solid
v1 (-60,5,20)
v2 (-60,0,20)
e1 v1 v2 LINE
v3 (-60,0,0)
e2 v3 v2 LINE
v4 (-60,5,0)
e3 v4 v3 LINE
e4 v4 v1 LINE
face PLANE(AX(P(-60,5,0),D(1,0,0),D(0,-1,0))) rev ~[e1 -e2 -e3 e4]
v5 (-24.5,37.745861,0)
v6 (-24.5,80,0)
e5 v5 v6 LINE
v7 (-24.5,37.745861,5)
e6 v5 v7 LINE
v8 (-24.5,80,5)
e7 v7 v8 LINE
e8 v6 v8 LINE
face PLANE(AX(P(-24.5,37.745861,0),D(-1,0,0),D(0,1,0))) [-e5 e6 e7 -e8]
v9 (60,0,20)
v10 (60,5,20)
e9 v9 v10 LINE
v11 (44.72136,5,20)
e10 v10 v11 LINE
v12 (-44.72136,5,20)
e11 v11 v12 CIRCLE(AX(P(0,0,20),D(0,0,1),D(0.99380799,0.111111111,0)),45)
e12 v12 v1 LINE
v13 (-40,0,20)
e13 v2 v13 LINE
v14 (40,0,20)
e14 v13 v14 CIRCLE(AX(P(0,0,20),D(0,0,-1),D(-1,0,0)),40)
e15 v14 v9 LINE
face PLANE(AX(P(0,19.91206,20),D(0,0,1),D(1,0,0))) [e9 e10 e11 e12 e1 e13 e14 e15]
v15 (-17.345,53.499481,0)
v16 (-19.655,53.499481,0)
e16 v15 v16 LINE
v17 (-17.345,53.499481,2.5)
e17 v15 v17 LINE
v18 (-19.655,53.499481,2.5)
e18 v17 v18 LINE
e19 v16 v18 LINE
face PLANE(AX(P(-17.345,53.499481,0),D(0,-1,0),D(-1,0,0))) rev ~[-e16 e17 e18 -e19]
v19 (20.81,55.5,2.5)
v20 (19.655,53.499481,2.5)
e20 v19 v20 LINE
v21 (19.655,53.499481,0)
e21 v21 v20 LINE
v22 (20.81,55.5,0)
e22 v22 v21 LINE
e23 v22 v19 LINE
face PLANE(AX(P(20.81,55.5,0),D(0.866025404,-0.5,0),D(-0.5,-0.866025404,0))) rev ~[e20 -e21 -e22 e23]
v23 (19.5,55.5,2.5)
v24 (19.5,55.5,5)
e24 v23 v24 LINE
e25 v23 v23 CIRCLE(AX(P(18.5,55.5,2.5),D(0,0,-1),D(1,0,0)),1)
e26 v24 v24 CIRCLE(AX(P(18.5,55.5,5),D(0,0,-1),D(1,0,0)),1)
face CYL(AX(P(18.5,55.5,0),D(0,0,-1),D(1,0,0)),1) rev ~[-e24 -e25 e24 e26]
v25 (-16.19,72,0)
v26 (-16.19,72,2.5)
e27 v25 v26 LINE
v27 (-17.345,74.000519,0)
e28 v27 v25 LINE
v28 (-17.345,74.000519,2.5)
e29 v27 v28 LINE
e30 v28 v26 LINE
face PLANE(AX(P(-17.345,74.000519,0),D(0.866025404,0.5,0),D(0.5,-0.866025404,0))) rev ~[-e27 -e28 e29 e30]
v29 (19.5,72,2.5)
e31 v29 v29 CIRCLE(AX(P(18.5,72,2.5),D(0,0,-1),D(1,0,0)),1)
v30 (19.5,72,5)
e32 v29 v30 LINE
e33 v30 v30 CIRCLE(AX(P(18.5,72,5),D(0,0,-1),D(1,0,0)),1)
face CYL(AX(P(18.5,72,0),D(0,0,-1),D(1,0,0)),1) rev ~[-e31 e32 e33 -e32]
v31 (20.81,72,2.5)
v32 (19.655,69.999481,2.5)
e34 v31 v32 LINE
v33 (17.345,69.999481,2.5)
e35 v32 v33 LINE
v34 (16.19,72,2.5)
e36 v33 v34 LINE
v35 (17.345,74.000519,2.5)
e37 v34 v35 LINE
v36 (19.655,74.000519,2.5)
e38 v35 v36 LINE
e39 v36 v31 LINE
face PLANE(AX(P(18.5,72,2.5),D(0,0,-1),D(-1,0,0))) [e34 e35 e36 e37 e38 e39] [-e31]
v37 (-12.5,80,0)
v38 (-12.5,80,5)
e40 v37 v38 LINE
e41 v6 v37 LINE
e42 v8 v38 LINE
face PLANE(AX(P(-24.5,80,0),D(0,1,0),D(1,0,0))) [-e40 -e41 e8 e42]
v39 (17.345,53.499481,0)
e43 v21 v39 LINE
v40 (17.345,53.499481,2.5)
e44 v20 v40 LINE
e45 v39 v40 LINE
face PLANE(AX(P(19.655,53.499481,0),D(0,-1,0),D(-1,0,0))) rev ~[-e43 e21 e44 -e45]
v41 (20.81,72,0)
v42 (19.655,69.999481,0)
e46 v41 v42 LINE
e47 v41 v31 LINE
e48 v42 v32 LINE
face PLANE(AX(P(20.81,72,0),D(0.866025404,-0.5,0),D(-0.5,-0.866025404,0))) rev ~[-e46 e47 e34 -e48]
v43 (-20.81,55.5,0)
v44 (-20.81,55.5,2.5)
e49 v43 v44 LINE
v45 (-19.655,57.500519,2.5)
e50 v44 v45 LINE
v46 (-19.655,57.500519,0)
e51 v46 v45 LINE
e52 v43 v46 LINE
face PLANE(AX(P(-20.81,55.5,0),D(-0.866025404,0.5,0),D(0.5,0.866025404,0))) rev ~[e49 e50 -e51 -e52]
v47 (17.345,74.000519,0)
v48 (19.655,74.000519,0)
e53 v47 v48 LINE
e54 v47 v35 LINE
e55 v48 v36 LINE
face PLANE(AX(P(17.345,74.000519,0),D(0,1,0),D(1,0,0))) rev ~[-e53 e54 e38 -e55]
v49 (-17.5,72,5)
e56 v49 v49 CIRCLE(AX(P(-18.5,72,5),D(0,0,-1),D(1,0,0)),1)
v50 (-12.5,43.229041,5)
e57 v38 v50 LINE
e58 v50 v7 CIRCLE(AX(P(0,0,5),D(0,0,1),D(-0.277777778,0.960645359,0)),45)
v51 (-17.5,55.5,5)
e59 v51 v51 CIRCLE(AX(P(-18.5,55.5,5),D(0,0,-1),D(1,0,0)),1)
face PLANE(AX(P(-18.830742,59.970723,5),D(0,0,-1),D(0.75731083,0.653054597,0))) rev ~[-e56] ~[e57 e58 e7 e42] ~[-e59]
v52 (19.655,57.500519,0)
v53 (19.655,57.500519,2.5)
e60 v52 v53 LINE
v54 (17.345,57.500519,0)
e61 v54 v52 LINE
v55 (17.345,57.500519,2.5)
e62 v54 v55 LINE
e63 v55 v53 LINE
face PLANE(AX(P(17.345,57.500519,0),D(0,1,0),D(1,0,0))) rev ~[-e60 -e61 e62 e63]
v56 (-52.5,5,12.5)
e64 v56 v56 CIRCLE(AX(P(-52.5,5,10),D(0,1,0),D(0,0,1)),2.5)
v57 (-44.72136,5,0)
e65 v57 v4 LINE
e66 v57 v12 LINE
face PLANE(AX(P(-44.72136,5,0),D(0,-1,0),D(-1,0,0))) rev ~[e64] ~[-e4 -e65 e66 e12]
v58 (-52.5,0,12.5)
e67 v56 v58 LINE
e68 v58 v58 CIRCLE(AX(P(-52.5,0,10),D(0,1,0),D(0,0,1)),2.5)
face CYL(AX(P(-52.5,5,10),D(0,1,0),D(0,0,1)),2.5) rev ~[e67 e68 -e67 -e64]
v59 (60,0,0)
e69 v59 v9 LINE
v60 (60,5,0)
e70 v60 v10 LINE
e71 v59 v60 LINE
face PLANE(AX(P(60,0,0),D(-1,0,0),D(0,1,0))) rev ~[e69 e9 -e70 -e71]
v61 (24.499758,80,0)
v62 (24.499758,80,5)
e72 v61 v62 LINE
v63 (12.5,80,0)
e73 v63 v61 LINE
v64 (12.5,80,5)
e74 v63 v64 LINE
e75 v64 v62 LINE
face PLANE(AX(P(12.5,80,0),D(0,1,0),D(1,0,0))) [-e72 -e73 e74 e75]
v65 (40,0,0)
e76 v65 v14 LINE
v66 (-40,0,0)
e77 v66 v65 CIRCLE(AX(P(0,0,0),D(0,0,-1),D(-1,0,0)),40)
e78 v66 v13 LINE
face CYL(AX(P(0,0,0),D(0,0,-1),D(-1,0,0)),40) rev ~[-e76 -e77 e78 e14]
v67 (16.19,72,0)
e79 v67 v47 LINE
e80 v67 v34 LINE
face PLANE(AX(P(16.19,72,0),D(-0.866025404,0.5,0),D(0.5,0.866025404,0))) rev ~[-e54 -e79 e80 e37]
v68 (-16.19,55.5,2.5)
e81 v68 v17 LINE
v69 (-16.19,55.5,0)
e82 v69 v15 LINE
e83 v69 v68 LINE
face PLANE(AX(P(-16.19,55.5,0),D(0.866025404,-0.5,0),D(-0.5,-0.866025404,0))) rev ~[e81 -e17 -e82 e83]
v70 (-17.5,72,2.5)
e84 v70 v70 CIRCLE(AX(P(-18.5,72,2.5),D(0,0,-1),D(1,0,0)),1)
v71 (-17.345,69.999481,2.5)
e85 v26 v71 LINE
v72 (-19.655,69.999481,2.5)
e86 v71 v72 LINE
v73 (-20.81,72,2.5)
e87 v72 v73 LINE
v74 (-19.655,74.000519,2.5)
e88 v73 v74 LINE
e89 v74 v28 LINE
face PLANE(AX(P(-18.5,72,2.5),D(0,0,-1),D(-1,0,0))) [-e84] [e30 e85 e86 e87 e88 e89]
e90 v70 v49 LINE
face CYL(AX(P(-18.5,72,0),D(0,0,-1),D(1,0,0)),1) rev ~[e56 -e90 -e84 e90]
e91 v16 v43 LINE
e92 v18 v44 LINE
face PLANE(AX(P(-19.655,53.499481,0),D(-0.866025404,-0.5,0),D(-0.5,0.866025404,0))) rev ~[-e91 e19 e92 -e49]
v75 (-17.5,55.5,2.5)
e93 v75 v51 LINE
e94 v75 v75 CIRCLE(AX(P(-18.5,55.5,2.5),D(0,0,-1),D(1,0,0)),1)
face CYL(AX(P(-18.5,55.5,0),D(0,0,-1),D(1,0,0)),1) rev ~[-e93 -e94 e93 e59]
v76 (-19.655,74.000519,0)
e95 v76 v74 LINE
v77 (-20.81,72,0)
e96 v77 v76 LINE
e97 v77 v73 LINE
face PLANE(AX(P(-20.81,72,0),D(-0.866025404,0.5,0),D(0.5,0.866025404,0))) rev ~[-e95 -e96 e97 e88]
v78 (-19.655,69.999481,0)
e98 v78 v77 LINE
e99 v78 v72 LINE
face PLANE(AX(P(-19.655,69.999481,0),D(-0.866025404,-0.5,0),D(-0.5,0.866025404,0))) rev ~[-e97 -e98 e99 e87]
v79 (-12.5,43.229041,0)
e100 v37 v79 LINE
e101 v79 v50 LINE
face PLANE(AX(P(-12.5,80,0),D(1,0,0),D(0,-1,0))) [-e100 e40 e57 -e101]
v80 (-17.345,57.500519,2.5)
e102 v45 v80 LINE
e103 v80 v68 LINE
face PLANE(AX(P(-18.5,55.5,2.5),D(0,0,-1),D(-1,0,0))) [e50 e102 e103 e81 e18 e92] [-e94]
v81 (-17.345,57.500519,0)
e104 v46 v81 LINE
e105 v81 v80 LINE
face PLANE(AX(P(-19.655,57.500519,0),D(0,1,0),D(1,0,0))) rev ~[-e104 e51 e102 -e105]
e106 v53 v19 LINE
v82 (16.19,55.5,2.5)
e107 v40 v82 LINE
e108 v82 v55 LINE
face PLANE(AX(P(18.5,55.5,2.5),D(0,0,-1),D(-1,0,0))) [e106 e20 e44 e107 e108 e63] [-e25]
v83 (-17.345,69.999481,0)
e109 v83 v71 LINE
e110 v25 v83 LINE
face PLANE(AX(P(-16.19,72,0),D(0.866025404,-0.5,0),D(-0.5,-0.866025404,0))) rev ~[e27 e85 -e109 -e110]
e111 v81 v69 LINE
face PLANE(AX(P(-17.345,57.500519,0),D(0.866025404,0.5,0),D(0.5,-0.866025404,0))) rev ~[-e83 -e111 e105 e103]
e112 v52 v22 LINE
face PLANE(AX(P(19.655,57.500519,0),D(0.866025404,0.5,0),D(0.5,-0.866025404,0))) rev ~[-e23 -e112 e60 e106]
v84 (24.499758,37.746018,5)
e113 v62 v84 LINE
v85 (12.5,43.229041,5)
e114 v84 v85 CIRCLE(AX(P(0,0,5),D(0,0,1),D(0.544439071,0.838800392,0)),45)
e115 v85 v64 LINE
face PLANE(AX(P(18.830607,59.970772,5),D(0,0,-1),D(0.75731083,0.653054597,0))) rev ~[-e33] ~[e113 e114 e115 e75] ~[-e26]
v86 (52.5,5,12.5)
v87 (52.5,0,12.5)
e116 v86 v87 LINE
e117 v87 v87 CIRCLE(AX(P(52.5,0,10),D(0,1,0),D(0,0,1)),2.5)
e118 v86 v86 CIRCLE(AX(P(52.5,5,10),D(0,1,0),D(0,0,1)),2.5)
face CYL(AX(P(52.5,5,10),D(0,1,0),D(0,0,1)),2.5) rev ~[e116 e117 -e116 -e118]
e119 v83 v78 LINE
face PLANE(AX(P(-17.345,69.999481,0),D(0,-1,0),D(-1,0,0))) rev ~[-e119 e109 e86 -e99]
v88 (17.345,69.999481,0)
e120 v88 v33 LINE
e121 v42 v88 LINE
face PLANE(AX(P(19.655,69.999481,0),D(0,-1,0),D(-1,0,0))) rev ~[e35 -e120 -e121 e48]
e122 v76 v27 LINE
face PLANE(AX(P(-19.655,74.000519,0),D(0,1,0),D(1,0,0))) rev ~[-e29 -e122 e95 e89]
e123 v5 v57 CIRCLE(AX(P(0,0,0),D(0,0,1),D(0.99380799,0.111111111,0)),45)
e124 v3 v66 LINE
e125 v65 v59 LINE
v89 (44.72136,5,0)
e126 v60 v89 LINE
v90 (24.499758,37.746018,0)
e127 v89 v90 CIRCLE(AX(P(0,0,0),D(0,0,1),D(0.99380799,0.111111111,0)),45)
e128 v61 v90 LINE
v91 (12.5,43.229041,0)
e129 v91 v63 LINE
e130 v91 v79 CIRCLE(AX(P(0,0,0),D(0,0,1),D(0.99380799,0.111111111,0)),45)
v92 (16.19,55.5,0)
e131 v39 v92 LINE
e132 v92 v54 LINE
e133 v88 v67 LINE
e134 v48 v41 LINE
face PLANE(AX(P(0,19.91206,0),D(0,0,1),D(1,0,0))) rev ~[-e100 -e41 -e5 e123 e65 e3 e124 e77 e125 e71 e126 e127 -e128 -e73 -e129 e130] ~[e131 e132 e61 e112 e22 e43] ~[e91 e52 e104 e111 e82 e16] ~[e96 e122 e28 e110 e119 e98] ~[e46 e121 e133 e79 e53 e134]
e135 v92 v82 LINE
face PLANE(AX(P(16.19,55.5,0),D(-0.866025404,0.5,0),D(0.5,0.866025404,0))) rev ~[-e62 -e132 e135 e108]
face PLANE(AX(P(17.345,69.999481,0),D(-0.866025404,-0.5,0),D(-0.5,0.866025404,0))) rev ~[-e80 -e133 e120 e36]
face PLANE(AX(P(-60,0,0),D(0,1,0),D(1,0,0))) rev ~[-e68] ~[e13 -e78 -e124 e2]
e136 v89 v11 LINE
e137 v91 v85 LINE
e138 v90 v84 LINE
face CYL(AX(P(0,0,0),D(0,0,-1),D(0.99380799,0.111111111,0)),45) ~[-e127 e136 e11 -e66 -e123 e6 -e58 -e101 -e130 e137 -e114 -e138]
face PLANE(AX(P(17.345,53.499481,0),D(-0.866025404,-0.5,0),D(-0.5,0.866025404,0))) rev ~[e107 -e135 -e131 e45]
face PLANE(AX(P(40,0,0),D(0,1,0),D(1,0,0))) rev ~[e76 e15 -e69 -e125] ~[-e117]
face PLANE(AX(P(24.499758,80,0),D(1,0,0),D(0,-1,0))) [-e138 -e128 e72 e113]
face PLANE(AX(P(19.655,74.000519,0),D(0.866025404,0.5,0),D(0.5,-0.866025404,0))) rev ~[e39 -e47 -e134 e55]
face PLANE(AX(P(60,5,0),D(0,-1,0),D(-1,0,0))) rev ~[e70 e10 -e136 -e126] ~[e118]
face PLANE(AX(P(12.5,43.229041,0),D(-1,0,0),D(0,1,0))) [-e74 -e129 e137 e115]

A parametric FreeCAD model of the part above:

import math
import FreeCAD as App
import Part
import Sketcher
from FreeCAD import Vector
Q = App.Units.Quantity

doc = App.newDocument("Part")
params = doc.addObject("Spreadsheet::Sheet", "Params")
for row, (alias, value) in enumerate([
    ("sketch1_radius", "40 mm"),
    ("sketch1_radius2", "45 mm"),
    ("sketch1_width", "20 mm"),
    ("sketch1_height", "5 mm"),
    ("pad1_length", "20 mm"),
    ("sketch2_diameter", "2 mm"),
    ("sketch2_radius", "45 mm"),
    ("sketch2_width", "12 mm"),
    ("pad2_length", "5 mm"),
    ("sketch3_width", "2.31 mm"),
    ("sketch3_length", "2.31 mm"),
    ("pocket1_length", "2.5 mm"),
    ("sketch4_diameter", "5 mm"),
], start=1):
    params.set(f"A{row}", alias)
    params.set(f"B{row}", "=" + value)
    params.setAlias(f"B{row}", alias)

body = doc.addObject("PartDesign::Body", "Body")

sketch1 = body.newObject("Sketcher::SketchObject", "Sketch")
sketch1.AttachmentSupport = (doc.getObject("XY_Plane"), [""])
sketch1.MapMode = "FlatFace"
sketch1.addGeometry([
    Part.ArcOfCircle(Part.Circle(Vector(0, 0, 0), Vector(0, 0, 1), 40), math.radians(0), math.radians(180)),
    Part.LineSegment(Vector(40, 0, 0), Vector(60, 0, 0)),
    Part.LineSegment(Vector(60, 0, 0), Vector(60, 5, 0)),
    Part.LineSegment(Vector(60, 5, 0), Vector(44.72136, 5, 0)),
    Part.ArcOfCircle(Part.Circle(Vector(0, 0, 0), Vector(0, 0, 1), 45), math.radians(6.37937), math.radians(173.62063)),
    Part.LineSegment(Vector(-44.72136, 5, 0), Vector(-60, 5, 0)),
    Part.LineSegment(Vector(-60, 5, 0), Vector(-60, 0, 0)),
    Part.LineSegment(Vector(-60, 0, 0), Vector(-40, 0, 0)),
], False)
sketch1.addConstraint([
    Sketcher.Constraint("Coincident", 0, 1, 1, 1),
    Sketcher.Constraint("Coincident", 1, 2, 2, 1),
    Sketcher.Constraint("Coincident", 2, 2, 3, 1),
    Sketcher.Constraint("Coincident", 3, 2, 4, 1),
    Sketcher.Constraint("Coincident", 4, 2, 5, 1),
    Sketcher.Constraint("Coincident", 5, 2, 6, 1),
    Sketcher.Constraint("Coincident", 6, 2, 7, 1),
    Sketcher.Constraint("Coincident", 7, 2, 0, 2),
    Sketcher.Constraint("Horizontal", 1),
    Sketcher.Constraint("Vertical", 2),
    Sketcher.Constraint("Horizontal", 3),
    Sketcher.Constraint("Horizontal", 5),
    Sketcher.Constraint("Vertical", 6),
    Sketcher.Constraint("Horizontal", 7),
    Sketcher.Constraint("Coincident", 0, 3, -1, 1),
    Sketcher.Constraint("Coincident", 4, 3, -1, 1),
    Sketcher.Constraint("Symmetric", 1, 2, 6, 2, -1, 1),
    Sketcher.Constraint("PointOnObject", 0, 1, -1),
    Sketcher.Constraint("Horizontal", 3, 2, 4, 2),
    Sketcher.Constraint("Radius", 0, Q("40 mm")),
    Sketcher.Constraint("Radius", 4, Q("45 mm")),
    Sketcher.Constraint("DistanceX", 1, 1, 1, 2, Q("20 mm")),
    Sketcher.Constraint("DistanceY", 2, 1, 2, 2, Q("5 mm")),
])
sketch1.setExpression("Constraints[19]", "Params.sketch1_radius")
sketch1.setExpression("Constraints[20]", "Params.sketch1_radius2")
sketch1.setExpression("Constraints[21]", "Params.sketch1_width")
sketch1.setExpression("Constraints[22]", "Params.sketch1_height")
pad1 = body.newObject("PartDesign::Pad", "Pad")
pad1.Profile = sketch1
pad1.setExpression("Length", "Params.pad1_length")

sketch2 = body.newObject("Sketcher::SketchObject", "Sketch001")
sketch2.AttachmentSupport = (doc.getObject("XY_Plane"), [""])
sketch2.MapMode = "FlatFace"
sketch2.addGeometry([
    Part.LineSegment(Vector(-24.5, 37.745861, 0), Vector(-24.5, 80, 0)),
    Part.LineSegment(Vector(-24.5, 80, 0), Vector(-12.5, 80, 0)),
    Part.LineSegment(Vector(-12.5, 80, 0), Vector(-12.5, 43.229041, 0)),
    Part.ArcOfCircle(Part.Circle(Vector(0, 0, 0), Vector(0, 0, 1), 45), math.radians(106.12762), math.radians(122.986707)),
    Part.Circle(Vector(-18.5, 72, 0), Vector(0, 0, 1), 1),
    Part.Circle(Vector(-18.5, 55.5, 0), Vector(0, 0, 1), 1),
    Part.LineSegment(Vector(12.5, 43.229041, 0), Vector(12.5, 80, 0)),
    Part.LineSegment(Vector(12.5, 80, 0), Vector(24.499758, 80, 0)),
    Part.LineSegment(Vector(24.499758, 80, 0), Vector(24.499758, 37.746018, 0)),
    Part.ArcOfCircle(Part.Circle(Vector(0, 0, 0), Vector(0, 0, 1), 45), math.radians(57.01366), math.radians(73.87238)),
    Part.Circle(Vector(18.5, 72, 0), Vector(0, 0, 1), 1),
    Part.Circle(Vector(18.5, 55.5, 0), Vector(0, 0, 1), 1),
], False)
sketch2.addConstraint([
    Sketcher.Constraint("Coincident", 0, 2, 1, 1),
    Sketcher.Constraint("Coincident", 1, 2, 2, 1),
    Sketcher.Constraint("Coincident", 2, 2, 3, 1),
    Sketcher.Constraint("Coincident", 3, 2, 0, 1),
    Sketcher.Constraint("Coincident", 6, 2, 7, 1),
    Sketcher.Constraint("Coincident", 7, 2, 8, 1),
    Sketcher.Constraint("Coincident", 8, 2, 9, 1),
    Sketcher.Constraint("Coincident", 9, 2, 6, 1),
    Sketcher.Constraint("Vertical", 0),
    Sketcher.Constraint("Horizontal", 1),
    Sketcher.Constraint("Vertical", 2),
    Sketcher.Constraint("Vertical", 6),
    Sketcher.Constraint("Horizontal", 7),
    Sketcher.Constraint("Vertical", 8),
    Sketcher.Constraint("Coincident", 3, 3, -1, 1),
    Sketcher.Constraint("Coincident", 9, 3, -1, 1),
    Sketcher.Constraint("Equal", 4, 5),
    Sketcher.Constraint("Equal", 3, 9),
    Sketcher.Constraint("Equal", 5, 10),
    Sketcher.Constraint("Equal", 10, 11),
    Sketcher.Constraint("Symmetric", 4, 3, 10, 3, -2),
    Sketcher.Constraint("Symmetric", 5, 3, 11, 3, -2),
    Sketcher.Constraint("Symmetric", 1, 2, 6, 2, -2),
    Sketcher.Constraint("Vertical", 4, 3, 5, 3),
    Sketcher.Constraint("Diameter", 4, Q("2 mm")),
    Sketcher.Constraint("Radius", 3, Q("45 mm")),
    Sketcher.Constraint("DistanceX", 1, 1, 1, 2, Q("12 mm")),
    Sketcher.Constraint("DistanceY", -1, 1, 4, 3, Q("72 mm")),
    Sketcher.Constraint("DistanceY", -1, 1, 0, 2, Q("80 mm")),
    Sketcher.Constraint("DistanceX", 4, 3, 10, 3, Q("37 mm")),
    Sketcher.Constraint("DistanceX", 0, 2, 4, 3, Q("6 mm")),
    Sketcher.Constraint("DistanceY", -1, 1, 5, 3, Q("55.5 mm")),
    Sketcher.Constraint("DistanceX", 7, 1, 7, 2, Q("11.999758 mm")),
])
sketch2.setExpression("Constraints[24]", "Params.sketch2_diameter")
sketch2.setExpression("Constraints[25]", "Params.sketch2_radius")
sketch2.setExpression("Constraints[26]", "Params.sketch2_width")
pad2 = body.newObject("PartDesign::Pad", "Pad001")
pad2.Profile = sketch2
pad2.setExpression("Length", "Params.pad2_length")

sketch3 = body.newObject("Sketcher::SketchObject", "Sketch002")
sketch3.AttachmentSupport = (doc.getObject("XY_Plane"), [""])
sketch3.MapMode = "FlatFace"
sketch3.addGeometry([
    Part.LineSegment(Vector(16.19, 55.5, 0), Vector(17.345, 57.500519, 0)),
    Part.LineSegment(Vector(17.345, 57.500519, 0), Vector(19.655, 57.500519, 0)),
    Part.LineSegment(Vector(19.655, 57.500519, 0), Vector(20.81, 55.5, 0)),
    Part.LineSegment(Vector(20.81, 55.5, 0), Vector(19.655, 53.499481, 0)),
    Part.LineSegment(Vector(19.655, 53.499481, 0), Vector(17.345, 53.499481, 0)),
    Part.LineSegment(Vector(17.345, 53.499481, 0), Vector(16.19, 55.5, 0)),
    Part.LineSegment(Vector(16.19, 72, 0), Vector(17.345, 74.000519, 0)),
    Part.LineSegment(Vector(17.345, 74.000519, 0), Vector(19.655, 74.000519, 0)),
    Part.LineSegment(Vector(19.655, 74.000519, 0), Vector(20.81, 72, 0)),
    Part.LineSegment(Vector(20.81, 72, 0), Vector(19.655, 69.999481, 0)),
    Part.LineSegment(Vector(19.655, 69.999481, 0), Vector(17.345, 69.999481, 0)),
    Part.LineSegment(Vector(17.345, 69.999481, 0), Vector(16.19, 72, 0)),
    Part.LineSegment(Vector(-20.81, 72, 0), Vector(-19.655, 74.000519, 0)),
    Part.LineSegment(Vector(-19.655, 74.000519, 0), Vector(-17.345, 74.000519, 0)),
    Part.LineSegment(Vector(-17.345, 74.000519, 0), Vector(-16.19, 72, 0)),
    Part.LineSegment(Vector(-16.19, 72, 0), Vector(-17.345, 69.999481, 0)),
    Part.LineSegment(Vector(-17.345, 69.999481, 0), Vector(-19.655, 69.999481, 0)),
    Part.LineSegment(Vector(-19.655, 69.999481, 0), Vector(-20.81, 72, 0)),
    Part.LineSegment(Vector(-20.81, 55.5, 0), Vector(-19.655, 57.500519, 0)),
    Part.LineSegment(Vector(-19.655, 57.500519, 0), Vector(-17.345, 57.500519, 0)),
    Part.LineSegment(Vector(-17.345, 57.500519, 0), Vector(-16.19, 55.5, 0)),
    Part.LineSegment(Vector(-16.19, 55.5, 0), Vector(-17.345, 53.499481, 0)),
    Part.LineSegment(Vector(-17.345, 53.499481, 0), Vector(-19.655, 53.499481, 0)),
    Part.LineSegment(Vector(-19.655, 53.499481, 0), Vector(-20.81, 55.5, 0)),
], False)
sketch3.addConstraint([
    Sketcher.Constraint("Coincident", 0, 2, 1, 1),
    Sketcher.Constraint("Coincident", 1, 2, 2, 1),
    Sketcher.Constraint("Coincident", 2, 2, 3, 1),
    Sketcher.Constraint("Coincident", 3, 2, 4, 1),
    Sketcher.Constraint("Coincident", 4, 2, 5, 1),
    Sketcher.Constraint("Coincident", 5, 2, 0, 1),
    Sketcher.Constraint("Coincident", 6, 2, 7, 1),
    Sketcher.Constraint("Coincident", 7, 2, 8, 1),
    Sketcher.Constraint("Coincident", 8, 2, 9, 1),
    Sketcher.Constraint("Coincident", 9, 2, 10, 1),
    Sketcher.Constraint("Coincident", 10, 2, 11, 1),
    Sketcher.Constraint("Coincident", 11, 2, 6, 1),
    Sketcher.Constraint("Coincident", 12, 2, 13, 1),
    Sketcher.Constraint("Coincident", 13, 2, 14, 1),
    Sketcher.Constraint("Coincident", 14, 2, 15, 1),
    Sketcher.Constraint("Coincident", 15, 2, 16, 1),
    Sketcher.Constraint("Coincident", 16, 2, 17, 1),
    Sketcher.Constraint("Coincident", 17, 2, 12, 1),
    Sketcher.Constraint("Coincident", 18, 2, 19, 1),
    Sketcher.Constraint("Coincident", 19, 2, 20, 1),
    Sketcher.Constraint("Coincident", 20, 2, 21, 1),
    Sketcher.Constraint("Coincident", 21, 2, 22, 1),
    Sketcher.Constraint("Coincident", 22, 2, 23, 1),
    Sketcher.Constraint("Coincident", 23, 2, 18, 1),
    Sketcher.Constraint("Horizontal", 1),
    Sketcher.Constraint("Horizontal", 4),
    Sketcher.Constraint("Horizontal", 7),
    Sketcher.Constraint("Horizontal", 10),
    Sketcher.Constraint("Horizontal", 13),
    Sketcher.Constraint("Horizontal", 16),
    Sketcher.Constraint("Horizontal", 19),
    Sketcher.Constraint("Horizontal", 22),
    Sketcher.Constraint("Symmetric", 7, 2, 12, 2, -2),
    Sketcher.Constraint("Symmetric", 11, 2, 14, 2, -2),
    Sketcher.Constraint("Symmetric", 10, 2, 15, 2, -2),
    Sketcher.Constraint("Symmetric", 8, 2, 17, 2, -2),
    Sketcher.Constraint("Symmetric", 1, 2, 18, 2, -2),
    Sketcher.Constraint("Symmetric", 5, 2, 20, 2, -2),
    Sketcher.Constraint("Symmetric", 4, 2, 21, 2, -2),
    Sketcher.Constraint("Symmetric", 2, 2, 23, 2, -2),
    Sketcher.Constraint("Parallel", 0, 3),
    Sketcher.Constraint("Parallel", 2, 5),
    Sketcher.Constraint("Parallel", 3, 6),
    Sketcher.Constraint("Parallel", 5, 8),
    Sketcher.Constraint("Parallel", 6, 9),
    Sketcher.Constraint("Parallel", 8, 11),
    Sketcher.Constraint("Parallel", 9, 12),
    Sketcher.Constraint("Parallel", 11, 14),
    Sketcher.Constraint("Parallel", 14, 17),
    Sketcher.Constraint("Parallel", 17, 20),
    Sketcher.Constraint("Parallel", 20, 23),
    Sketcher.Constraint("Horizontal", 2, 2, 5, 2),
    Sketcher.Constraint("Horizontal", 8, 2, 11, 2),
    Sketcher.Constraint("Vertical", 1, 2, 3, 2),
    Sketcher.Constraint("Vertical", 4, 2, 6, 2),
    Sketcher.Constraint("Vertical", 3, 2, 7, 2),
    Sketcher.Constraint("Vertical", 2, 2, 8, 2),
    Sketcher.Constraint("Vertical", 7, 2, 9, 2),
    Sketcher.Constraint("Angle", 0, Q("60 deg")),
    Sketcher.Constraint("DistanceY", -1, 1, 8, 2, Q("72 mm")),
    Sketcher.Constraint("DistanceX", 12, 2, 6, 2, Q("37 mm")),
    Sketcher.Constraint("DistanceX", 1, 1, 1, 2, Q("2.31 mm")),
    Sketcher.Constraint("DistanceY", -1, 1, 2, 2, Q("55.5 mm")),
    Sketcher.Constraint("Distance", 0, Q("2.31 mm")),
])
sketch3.setExpression("Constraints[61]", "Params.sketch3_width")
sketch3.setExpression("Constraints[63]", "Params.sketch3_length")
pocket1 = body.newObject("PartDesign::Pocket", "Pocket")
pocket1.Profile = sketch3
pocket1.setExpression("Length", "Params.pocket1_length")
pocket1.Reversed = True

sketch4 = body.newObject("Sketcher::SketchObject", "Sketch003")
sketch4.AttachmentSupport = (doc.getObject("XZ_Plane"), [""])
sketch4.MapMode = "FlatFace"
sketch4.AttachmentOffset = App.Placement(Vector(0, 0, -5), App.Rotation())
sketch4.addGeometry([
    Part.Circle(Vector(-52.5, 10, 0), Vector(0, 0, 1), 2.5),
    Part.Circle(Vector(52.5, 10, 0), Vector(0, 0, 1), 2.5),
], False)
sketch4.addConstraint([
    Sketcher.Constraint("Equal", 0, 1),
    Sketcher.Constraint("Symmetric", 0, 3, 1, 3, -2),
    Sketcher.Constraint("Diameter", 0, Q("5 mm")),
    Sketcher.Constraint("DistanceY", -1, 1, 0, 3, Q("10 mm")),
    Sketcher.Constraint("DistanceX", 0, 3, 1, 3, Q("105 mm")),
])
sketch4.setExpression("Constraints[2]", "Params.sketch4_diameter")
pocket2 = body.newObject("PartDesign::Pocket", "Pocket001")
pocket2.Profile = sketch4
pocket2.Type = "ThroughAll"
pocket2.Reversed = True

doc.recompute()
